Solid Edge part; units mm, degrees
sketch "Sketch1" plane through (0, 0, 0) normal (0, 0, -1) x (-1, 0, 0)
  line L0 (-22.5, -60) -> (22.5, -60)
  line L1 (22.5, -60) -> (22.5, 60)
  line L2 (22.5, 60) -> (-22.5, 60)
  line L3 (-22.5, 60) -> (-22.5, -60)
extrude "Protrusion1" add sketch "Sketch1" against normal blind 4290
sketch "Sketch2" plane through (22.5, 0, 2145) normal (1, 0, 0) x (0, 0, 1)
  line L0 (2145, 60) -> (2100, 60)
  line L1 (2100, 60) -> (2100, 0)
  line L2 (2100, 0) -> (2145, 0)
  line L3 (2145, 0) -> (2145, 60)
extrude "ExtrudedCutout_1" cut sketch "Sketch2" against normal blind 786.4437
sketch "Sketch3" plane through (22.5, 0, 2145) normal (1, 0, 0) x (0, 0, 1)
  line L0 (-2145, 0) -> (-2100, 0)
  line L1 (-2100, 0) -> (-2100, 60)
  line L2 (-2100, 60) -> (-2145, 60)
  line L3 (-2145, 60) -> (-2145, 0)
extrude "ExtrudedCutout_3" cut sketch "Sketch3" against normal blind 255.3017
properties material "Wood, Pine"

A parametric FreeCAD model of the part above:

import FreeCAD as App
import Part
import Sketcher
from FreeCAD import Vector


def add_polygon(sketch, points):
    """Adds a closed chain of lines whose ends are joined by coincident constraints."""
    first, n = sketch.GeometryCount, len(points)
    for a, b in zip(points, points[1:] + points[:1]):
        sketch.addGeometry(Part.LineSegment(App.Vector(*a, 0), App.Vector(*b, 0)), False)
    for i in range(n):
        sketch.addConstraint(Sketcher.Constraint("Coincident", first + i, 2, first + (i + 1) % n, 1))

doc = App.newDocument("Part")
params = doc.addObject("Spreadsheet::Sheet", "Params")
for row, (alias, value) in enumerate([
    ("sketch1_width", "45 mm"),
    ("sketch1_height", "120 mm"),
    ("pad1_length", "4290 mm"),
    ("sketch2_width", "60 mm"),
    ("sketch2_height", "45 mm"),
    ("pocket1_length", "786.4437 mm"),
    ("sketch3_width", "60 mm"),
    ("sketch3_height", "45 mm"),
    ("pocket2_length", "255.3017 mm"),
], start=1):
    params.set(f"A{row}", alias)
    params.set(f"B{row}", "=" + value)
    params.setAlias(f"B{row}", alias)

body = doc.addObject("PartDesign::Body", "Body")

# Sketch on XY plane
sketch1 = doc.addObject("Sketcher::SketchObject", "Sketch")
body.addObject(sketch1)
sketch1.AttachmentSupport = (doc.XY_Plane, [""])
sketch1.MapMode = "FlatFace"
add_polygon(sketch1, [(22, 60), (22, -60), (-22, -60), (-22, 60)])  # lines 0-3
sketch1.addConstraint([
    Sketcher.Constraint("Vertical", 0),
    Sketcher.Constraint("Horizontal", 1),
    Sketcher.Constraint("Vertical", 2),
    Sketcher.Constraint("Horizontal", 3),
    Sketcher.Constraint("Symmetric", 0, 2, 2, 2, -1, 1),
    Sketcher.Constraint("DistanceX", 1, 2, 1, 1, 45.0),
    Sketcher.Constraint("DistanceY", 0, 2, 0, 1, 120.0),
])
sketch1.setExpression("Constraints[9]", "Params.sketch1_width")
sketch1.setExpression("Constraints[10]", "Params.sketch1_height")
pad1 = doc.addObject("PartDesign::Pad", "Pad")
body.addObject(pad1)
pad1.Profile = sketch1
pad1.setExpression("Length", "Params.pad1_length")

# Sketch on YZ plane
sketch2 = doc.addObject("Sketcher::SketchObject", "Sketch001")
body.addObject(sketch2)
sketch2.AttachmentSupport = (doc.YZ_Plane, [""])
sketch2.MapMode = "FlatFace"
sketch2.AttachmentOffset = App.Placement(Vector(0, 0, 22.5), App.Rotation())
add_polygon(sketch2, [(0, 4290), (-60, 4290), (-60, 4245), (0, 4245)])  # lines 0-3
sketch2.addConstraint([
    Sketcher.Constraint("Horizontal", 0),
    Sketcher.Constraint("Vertical", 1),
    Sketcher.Constraint("Horizontal", 2),
    Sketcher.Constraint("Vertical", 3),
    Sketcher.Constraint("PointOnObject", 2, 2, -2),
    Sketcher.Constraint("DistanceX", 0, 2, 0, 1, 60.0),
    Sketcher.Constraint("DistanceY", 1, 2, 1, 1, 45.0),
    Sketcher.Constraint("DistanceY", -1, 1, 0, 2, 4290.0),
])
sketch2.setExpression("Constraints[9]", "Params.sketch2_width")
sketch2.setExpression("Constraints[10]", "Params.sketch2_height")
pocket1 = doc.addObject("PartDesign::Pocket", "Pocket")
body.addObject(pocket1)
pocket1.Profile = sketch2
pocket1.setExpression("Length", "Params.pocket1_length")

# Sketch on YZ plane
sketch3 = doc.addObject("Sketcher::SketchObject", "Sketch002")
body.addObject(sketch3)
sketch3.AttachmentSupport = (doc.YZ_Plane, [""])
sketch3.MapMode = "FlatFace"
sketch3.AttachmentOffset = App.Placement(Vector(0, 0, 22.5), App.Rotation())
add_polygon(sketch3, [(-60, 0), (0, 0), (0, 45), (-60, 45)])  # lines 0-3
sketch3.addConstraint([
    Sketcher.Constraint("Horizontal", 0),
    Sketcher.Constraint("Vertical", 1),
    Sketcher.Constraint("Horizontal", 2),
    Sketcher.Constraint("Vertical", 3),
    Sketcher.Constraint("Coincident", 0, 2, -1, 1),
    Sketcher.Constraint("DistanceX", 0, 1, 0, 2, 60.0),
    Sketcher.Constraint("DistanceY", 1, 1, 1, 2, 45.0),
])
sketch3.setExpression("Constraints[9]", "Params.sketch3_width")
sketch3.setExpression("Constraints[10]", "Params.sketch3_height")
pocket2 = doc.addObject("PartDesign::Pocket", "Pocket001")
body.addObject(pocket2)
pocket2.Profile = sketch3
pocket2.setExpression("Length", "Params.pocket2_length")

doc.recompute()
